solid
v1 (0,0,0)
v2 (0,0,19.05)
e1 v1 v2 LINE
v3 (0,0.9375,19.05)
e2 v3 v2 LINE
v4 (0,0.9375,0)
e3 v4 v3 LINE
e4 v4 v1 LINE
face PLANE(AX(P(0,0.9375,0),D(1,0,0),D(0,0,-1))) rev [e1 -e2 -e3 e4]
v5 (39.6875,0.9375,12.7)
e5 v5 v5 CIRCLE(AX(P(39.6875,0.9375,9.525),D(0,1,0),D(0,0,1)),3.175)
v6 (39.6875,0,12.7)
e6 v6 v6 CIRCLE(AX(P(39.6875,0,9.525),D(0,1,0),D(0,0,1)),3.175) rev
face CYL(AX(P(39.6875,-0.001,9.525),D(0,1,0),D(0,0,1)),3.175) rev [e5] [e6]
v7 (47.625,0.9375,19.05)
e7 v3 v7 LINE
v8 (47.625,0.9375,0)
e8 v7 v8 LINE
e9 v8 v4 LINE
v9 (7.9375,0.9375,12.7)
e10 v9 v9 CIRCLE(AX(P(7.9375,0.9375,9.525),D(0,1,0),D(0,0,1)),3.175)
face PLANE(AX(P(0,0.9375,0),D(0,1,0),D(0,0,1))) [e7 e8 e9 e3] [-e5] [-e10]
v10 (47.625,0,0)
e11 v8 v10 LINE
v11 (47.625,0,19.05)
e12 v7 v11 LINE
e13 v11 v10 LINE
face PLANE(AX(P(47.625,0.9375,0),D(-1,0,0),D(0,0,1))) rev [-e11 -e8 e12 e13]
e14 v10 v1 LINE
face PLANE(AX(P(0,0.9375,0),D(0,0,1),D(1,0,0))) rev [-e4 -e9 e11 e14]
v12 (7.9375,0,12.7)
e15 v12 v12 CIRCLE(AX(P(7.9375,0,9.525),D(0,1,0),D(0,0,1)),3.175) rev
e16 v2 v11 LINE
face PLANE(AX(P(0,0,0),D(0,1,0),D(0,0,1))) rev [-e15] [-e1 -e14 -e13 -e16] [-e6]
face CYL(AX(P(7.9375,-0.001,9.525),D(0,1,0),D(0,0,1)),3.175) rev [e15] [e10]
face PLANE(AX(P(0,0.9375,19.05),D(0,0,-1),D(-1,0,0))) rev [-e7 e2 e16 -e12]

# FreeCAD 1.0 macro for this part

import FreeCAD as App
import Part
import Sketcher
Q = App.Units.Quantity


def add_polygon(sketch, points):
    """Adds a closed chain of lines whose ends are joined by coincident constraints."""
    first, n = sketch.GeometryCount, len(points)
    for a, b in zip(points, points[1:] + points[:1]):
        sketch.addGeometry(Part.LineSegment(App.Vector(*a, 0), App.Vector(*b, 0)), False)
    for i in range(n):
        sketch.addConstraint(Sketcher.Constraint("Coincident", first + i, 2, first + (i + 1) % n, 1))

doc = App.newDocument("Part")
body = doc.addObject("PartDesign::Body", "Body")

sketch1 = body.newObject("Sketcher::SketchObject", "Sketch")
sketch1.AttachmentSupport = (doc.getObject("XZ_Plane"), [""])
sketch1.MapMode = "FlatFace"
add_polygon(sketch1, [(0, 0), (0, 19), (48, 19), (48, 0)])
sketch1.addConstraint([
    Sketcher.Constraint("Vertical", 0),
    Sketcher.Constraint("Horizontal", 1),
    Sketcher.Constraint("Vertical", 2),
    Sketcher.Constraint("Horizontal", 3),
    Sketcher.Constraint("Coincident", 3, 2, -1, 1),
    Sketcher.Constraint("DistanceY", 0, 1, 0, 2, Q("0.75 in")),
    Sketcher.Constraint("DistanceX", 1, 1, 1, 2, Q("1.875 in")),
])
pad1 = body.newObject("PartDesign::Pad", "Pad")
pad1.Profile = sketch1
pad1.Length = 0.9375
pad1.Reversed = True

sketch2 = body.newObject("Sketcher::SketchObject", "Sketch001")
sketch2.AttachmentSupport = (doc.getObject("XZ_Plane"), [""])
sketch2.MapMode = "FlatFace"
sketch2.AttachmentOffset = App.Placement(App.Vector(0, 0, -0.9375), App.Rotation())
sketch2.addGeometry(Part.Circle(App.Vector(7.9, 9.5, 0), App.Vector(0, 0, 1), 3.2), False)
sketch2.addConstraint([
    Sketcher.Constraint("Diameter", 0, Q("0.25 in")),
    Sketcher.Constraint("DistanceX", -1, 1, 0, 3, Q("0.3125 in")),
    Sketcher.Constraint("DistanceY", -1, 1, 0, 3, Q("0.375 in")),
])
pocket1 = body.newObject("PartDesign::Pocket", "Pocket")
pocket1.Profile = sketch2
pocket1.Type = "UpToFirst"
pocket1.Reversed = True

sketch3 = body.newObject("Sketcher::SketchObject", "Sketch002")
sketch3.AttachmentSupport = (doc.getObject("XZ_Plane"), [""])
sketch3.MapMode = "FlatFace"
sketch3.AttachmentOffset = App.Placement(App.Vector(0, 0, -0.9375), App.Rotation())
sketch3.addGeometry(Part.Circle(App.Vector(39.7, 9.5, 0), App.Vector(0, 0, 1), 3.2), False)
sketch3.addConstraint([
    Sketcher.Constraint("Diameter", 0, Q("0.25 in")),
    Sketcher.Constraint("DistanceX", -1, 1, 0, 3, Q("1.5625 in")),
    Sketcher.Constraint("DistanceY", -1, 1, 0, 3, Q("0.375 in")),
])
pocket2 = body.newObject("PartDesign::Pocket", "Pocket001")
pocket2.Profile = sketch3
pocket2.Type = "UpToFirst"
pocket2.Reversed = True

doc.recompute()
